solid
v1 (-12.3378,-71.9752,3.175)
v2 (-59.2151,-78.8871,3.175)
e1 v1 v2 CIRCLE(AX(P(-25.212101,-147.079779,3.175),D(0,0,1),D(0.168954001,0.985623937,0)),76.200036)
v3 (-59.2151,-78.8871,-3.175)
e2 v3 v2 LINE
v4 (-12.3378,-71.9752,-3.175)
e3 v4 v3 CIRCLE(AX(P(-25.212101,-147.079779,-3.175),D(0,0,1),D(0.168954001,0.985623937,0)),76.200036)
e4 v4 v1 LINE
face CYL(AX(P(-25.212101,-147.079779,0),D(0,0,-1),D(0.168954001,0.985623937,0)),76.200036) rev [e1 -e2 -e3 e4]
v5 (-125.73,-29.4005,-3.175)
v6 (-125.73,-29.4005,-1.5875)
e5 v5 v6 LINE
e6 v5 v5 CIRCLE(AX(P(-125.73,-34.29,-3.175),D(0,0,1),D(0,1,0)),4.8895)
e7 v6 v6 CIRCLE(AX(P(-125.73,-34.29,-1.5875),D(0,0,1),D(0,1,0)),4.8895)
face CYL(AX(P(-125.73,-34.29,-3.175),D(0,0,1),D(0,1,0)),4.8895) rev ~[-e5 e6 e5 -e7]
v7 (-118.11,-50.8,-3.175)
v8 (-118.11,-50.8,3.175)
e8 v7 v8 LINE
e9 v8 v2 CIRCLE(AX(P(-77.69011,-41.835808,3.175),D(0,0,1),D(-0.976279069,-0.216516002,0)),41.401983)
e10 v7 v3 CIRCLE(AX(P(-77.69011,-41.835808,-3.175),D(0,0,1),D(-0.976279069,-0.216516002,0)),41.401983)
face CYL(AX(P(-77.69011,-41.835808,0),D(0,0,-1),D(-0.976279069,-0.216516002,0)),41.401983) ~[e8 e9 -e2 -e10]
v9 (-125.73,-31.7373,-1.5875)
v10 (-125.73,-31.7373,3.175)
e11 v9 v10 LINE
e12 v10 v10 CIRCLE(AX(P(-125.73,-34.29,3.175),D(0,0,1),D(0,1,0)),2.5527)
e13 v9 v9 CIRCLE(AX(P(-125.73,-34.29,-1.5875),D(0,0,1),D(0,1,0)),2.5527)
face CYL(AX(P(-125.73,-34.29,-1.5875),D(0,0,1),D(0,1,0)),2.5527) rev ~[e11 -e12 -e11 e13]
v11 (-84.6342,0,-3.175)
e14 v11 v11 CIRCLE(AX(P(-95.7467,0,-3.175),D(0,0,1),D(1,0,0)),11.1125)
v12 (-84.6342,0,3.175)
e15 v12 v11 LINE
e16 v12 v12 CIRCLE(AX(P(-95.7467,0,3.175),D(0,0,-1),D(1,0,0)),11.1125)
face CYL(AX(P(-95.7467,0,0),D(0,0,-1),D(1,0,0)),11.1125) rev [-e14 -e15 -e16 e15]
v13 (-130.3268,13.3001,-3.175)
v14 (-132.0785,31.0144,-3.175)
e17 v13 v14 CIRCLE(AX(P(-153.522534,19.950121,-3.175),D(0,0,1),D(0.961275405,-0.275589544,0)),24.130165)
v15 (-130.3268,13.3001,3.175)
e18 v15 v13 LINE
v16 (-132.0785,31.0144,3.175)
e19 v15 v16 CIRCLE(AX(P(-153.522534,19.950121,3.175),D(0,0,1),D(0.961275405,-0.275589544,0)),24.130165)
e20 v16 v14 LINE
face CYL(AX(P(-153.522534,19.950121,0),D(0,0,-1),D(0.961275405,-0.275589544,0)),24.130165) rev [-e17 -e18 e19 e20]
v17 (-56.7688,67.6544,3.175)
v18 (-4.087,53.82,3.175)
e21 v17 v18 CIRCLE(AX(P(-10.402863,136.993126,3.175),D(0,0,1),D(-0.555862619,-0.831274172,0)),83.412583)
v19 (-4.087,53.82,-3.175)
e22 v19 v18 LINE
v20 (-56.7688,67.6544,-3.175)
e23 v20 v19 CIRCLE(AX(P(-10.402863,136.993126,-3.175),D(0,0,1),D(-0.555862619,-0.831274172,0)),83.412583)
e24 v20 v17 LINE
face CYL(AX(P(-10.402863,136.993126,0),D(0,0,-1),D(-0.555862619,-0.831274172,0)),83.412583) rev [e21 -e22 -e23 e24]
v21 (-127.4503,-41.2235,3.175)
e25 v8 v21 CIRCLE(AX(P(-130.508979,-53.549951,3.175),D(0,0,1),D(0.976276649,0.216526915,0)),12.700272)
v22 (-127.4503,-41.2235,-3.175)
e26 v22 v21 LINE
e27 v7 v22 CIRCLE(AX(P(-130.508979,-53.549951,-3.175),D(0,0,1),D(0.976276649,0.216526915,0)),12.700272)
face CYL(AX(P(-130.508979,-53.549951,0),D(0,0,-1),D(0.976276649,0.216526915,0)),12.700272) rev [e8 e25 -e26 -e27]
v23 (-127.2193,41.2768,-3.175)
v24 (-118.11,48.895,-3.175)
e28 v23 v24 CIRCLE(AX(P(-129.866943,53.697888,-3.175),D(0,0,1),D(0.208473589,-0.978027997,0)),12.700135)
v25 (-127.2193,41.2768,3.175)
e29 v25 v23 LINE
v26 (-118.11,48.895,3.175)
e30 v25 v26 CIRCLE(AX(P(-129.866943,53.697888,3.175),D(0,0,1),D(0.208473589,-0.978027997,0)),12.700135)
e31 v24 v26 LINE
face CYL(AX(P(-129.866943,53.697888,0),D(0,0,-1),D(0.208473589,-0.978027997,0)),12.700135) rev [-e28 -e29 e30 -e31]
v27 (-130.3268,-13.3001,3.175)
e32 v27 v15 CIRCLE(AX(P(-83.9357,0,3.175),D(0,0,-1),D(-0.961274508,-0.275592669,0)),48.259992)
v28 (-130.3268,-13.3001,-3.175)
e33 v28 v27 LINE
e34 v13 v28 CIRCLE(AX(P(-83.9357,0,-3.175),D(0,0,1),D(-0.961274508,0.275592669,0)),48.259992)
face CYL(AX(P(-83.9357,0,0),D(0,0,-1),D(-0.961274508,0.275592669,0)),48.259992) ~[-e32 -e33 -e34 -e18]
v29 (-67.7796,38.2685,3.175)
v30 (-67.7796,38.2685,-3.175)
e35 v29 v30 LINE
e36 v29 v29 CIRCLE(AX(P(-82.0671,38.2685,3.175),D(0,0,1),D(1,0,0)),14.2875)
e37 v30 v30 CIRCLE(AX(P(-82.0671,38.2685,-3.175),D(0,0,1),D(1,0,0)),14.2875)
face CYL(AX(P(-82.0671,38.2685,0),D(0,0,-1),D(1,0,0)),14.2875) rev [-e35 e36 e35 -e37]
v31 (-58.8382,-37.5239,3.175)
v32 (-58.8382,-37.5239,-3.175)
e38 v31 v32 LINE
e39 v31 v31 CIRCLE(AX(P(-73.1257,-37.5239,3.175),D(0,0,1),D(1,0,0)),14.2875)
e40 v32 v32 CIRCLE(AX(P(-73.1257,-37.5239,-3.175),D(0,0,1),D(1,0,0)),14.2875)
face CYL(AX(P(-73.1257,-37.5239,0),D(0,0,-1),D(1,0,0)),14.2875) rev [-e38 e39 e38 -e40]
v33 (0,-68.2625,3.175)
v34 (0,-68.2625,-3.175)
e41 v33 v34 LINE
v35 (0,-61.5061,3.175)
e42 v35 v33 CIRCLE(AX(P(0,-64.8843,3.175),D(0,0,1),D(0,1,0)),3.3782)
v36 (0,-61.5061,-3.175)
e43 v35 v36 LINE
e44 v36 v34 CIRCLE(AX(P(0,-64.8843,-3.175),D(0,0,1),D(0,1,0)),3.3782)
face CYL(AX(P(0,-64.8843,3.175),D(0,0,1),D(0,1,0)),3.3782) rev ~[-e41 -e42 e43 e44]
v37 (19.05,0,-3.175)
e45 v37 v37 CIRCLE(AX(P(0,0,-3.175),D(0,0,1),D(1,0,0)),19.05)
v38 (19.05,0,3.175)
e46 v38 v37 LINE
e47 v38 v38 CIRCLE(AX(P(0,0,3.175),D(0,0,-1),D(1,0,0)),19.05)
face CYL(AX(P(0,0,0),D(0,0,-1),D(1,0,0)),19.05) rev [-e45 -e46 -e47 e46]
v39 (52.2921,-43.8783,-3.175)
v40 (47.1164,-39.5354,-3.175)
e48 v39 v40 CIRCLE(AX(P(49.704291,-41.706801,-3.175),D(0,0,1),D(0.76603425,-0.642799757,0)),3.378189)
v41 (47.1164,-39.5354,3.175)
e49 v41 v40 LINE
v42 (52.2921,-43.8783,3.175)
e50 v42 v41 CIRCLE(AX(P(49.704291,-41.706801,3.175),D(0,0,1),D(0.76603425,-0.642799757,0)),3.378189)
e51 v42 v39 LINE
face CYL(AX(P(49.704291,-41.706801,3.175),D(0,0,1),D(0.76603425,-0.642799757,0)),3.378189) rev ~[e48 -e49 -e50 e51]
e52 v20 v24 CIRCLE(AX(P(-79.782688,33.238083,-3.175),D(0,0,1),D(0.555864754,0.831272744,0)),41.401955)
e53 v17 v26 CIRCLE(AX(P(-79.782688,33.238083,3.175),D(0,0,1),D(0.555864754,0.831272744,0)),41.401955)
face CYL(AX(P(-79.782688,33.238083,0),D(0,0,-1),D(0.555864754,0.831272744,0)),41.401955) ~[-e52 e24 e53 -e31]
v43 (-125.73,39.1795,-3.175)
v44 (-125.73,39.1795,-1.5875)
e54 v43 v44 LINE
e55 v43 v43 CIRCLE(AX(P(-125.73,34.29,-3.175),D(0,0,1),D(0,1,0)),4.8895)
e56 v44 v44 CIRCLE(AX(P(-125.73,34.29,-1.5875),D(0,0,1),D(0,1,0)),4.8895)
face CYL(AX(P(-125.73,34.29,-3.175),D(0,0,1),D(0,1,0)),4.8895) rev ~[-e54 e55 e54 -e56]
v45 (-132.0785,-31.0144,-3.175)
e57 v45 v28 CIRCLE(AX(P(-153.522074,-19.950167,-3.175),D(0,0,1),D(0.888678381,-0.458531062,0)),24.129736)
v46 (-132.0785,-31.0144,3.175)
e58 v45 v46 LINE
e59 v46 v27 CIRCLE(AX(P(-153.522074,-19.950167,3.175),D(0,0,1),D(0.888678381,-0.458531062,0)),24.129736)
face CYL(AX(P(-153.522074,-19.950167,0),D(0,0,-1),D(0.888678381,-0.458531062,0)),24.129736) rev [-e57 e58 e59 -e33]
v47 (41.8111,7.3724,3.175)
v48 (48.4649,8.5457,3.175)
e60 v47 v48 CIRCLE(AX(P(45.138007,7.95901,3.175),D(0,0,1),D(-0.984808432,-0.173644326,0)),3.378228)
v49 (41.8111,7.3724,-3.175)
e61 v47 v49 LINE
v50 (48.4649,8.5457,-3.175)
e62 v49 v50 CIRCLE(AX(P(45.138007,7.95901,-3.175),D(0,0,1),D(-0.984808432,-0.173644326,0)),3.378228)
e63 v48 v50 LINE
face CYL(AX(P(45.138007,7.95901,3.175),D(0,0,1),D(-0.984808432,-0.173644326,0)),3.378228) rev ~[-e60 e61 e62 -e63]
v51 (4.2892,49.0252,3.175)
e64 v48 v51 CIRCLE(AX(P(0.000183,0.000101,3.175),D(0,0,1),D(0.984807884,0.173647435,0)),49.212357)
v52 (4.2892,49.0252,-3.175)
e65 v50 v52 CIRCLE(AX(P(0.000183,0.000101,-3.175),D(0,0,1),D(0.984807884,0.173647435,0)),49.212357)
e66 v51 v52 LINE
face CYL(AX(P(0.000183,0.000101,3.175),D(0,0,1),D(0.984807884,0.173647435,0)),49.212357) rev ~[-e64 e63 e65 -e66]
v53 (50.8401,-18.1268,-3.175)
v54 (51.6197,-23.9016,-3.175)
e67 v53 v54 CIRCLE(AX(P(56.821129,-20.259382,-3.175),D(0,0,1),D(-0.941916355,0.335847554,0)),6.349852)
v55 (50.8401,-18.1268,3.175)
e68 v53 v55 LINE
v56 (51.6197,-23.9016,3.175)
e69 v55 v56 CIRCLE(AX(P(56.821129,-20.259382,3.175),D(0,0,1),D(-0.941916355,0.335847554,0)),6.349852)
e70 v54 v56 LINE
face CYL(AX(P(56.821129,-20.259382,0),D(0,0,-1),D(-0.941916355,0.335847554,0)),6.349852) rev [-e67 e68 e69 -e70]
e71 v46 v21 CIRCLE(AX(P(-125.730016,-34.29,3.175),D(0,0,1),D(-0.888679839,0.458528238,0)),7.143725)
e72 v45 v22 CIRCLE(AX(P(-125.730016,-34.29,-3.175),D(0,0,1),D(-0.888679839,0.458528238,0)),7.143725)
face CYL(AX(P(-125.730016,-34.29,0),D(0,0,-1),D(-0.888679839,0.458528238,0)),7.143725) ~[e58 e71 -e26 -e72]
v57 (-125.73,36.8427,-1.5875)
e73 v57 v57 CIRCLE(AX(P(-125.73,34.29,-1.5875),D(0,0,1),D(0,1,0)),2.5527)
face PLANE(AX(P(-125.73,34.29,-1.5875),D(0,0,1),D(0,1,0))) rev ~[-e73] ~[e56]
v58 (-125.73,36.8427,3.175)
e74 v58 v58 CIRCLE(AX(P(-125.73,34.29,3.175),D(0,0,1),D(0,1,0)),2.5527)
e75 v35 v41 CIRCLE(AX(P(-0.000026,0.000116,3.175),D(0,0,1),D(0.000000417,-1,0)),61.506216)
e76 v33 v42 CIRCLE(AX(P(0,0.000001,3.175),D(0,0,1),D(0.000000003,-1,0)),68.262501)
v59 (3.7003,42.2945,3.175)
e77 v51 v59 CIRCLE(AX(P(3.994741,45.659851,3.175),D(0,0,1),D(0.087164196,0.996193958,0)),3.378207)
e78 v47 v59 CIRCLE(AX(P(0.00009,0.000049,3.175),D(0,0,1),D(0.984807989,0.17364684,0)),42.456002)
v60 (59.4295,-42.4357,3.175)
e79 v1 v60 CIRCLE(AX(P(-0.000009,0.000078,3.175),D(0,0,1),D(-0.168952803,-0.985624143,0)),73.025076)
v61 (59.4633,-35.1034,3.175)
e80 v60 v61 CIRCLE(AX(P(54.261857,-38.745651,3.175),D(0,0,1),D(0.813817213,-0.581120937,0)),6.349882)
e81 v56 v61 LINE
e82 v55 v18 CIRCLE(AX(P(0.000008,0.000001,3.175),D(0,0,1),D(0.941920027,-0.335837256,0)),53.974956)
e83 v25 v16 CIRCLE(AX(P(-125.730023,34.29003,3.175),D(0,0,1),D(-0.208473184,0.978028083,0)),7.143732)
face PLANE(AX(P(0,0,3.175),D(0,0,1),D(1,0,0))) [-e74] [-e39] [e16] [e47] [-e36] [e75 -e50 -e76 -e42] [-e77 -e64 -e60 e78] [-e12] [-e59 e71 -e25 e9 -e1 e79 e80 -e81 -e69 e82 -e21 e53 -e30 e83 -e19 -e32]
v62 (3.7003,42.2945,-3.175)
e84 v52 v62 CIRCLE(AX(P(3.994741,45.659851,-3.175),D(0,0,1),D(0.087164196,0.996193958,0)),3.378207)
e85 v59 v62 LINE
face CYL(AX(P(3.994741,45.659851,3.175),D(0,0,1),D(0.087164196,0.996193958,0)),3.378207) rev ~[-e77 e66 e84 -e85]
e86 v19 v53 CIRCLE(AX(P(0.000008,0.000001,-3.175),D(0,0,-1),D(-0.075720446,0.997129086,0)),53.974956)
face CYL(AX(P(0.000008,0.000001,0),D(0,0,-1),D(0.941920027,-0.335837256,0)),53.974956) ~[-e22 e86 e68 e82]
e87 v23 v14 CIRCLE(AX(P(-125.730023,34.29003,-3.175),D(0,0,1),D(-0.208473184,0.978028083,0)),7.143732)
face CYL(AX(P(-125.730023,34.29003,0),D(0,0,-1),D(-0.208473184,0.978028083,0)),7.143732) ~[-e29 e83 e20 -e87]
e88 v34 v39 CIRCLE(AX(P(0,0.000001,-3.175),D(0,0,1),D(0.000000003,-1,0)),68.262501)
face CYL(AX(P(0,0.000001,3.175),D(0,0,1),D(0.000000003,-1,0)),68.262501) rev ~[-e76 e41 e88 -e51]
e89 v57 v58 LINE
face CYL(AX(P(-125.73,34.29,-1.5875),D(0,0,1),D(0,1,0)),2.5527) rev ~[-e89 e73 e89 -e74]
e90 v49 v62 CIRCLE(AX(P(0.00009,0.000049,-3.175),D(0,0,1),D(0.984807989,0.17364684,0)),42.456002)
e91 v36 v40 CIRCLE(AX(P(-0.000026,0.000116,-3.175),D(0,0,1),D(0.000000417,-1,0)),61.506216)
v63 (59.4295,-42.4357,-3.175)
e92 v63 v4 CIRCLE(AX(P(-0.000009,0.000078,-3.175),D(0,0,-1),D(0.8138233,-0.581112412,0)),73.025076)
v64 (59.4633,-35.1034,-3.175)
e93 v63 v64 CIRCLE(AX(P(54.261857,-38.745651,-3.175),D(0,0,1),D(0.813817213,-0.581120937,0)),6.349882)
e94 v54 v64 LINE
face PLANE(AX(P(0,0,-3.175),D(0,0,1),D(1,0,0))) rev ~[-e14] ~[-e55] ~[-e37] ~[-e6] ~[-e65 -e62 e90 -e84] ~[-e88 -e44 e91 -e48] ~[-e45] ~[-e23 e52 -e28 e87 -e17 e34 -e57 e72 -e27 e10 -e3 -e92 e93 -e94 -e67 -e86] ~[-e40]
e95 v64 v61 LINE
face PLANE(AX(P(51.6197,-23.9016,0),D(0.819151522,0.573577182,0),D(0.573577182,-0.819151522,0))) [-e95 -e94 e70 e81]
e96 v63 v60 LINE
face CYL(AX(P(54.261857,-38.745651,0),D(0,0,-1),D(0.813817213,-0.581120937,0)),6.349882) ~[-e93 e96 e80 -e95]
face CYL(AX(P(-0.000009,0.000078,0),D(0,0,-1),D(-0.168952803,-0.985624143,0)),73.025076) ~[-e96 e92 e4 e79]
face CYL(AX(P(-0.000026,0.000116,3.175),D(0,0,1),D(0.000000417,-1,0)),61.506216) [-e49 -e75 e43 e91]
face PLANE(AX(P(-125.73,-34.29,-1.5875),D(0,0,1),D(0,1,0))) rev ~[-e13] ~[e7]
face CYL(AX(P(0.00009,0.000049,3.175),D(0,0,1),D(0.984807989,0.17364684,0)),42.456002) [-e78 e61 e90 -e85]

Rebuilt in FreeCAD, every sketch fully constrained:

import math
import FreeCAD as App
import Part
import Sketcher
from FreeCAD import Vector
Q = App.Units.Quantity

doc = App.newDocument("Part")
body = doc.addObject("PartDesign::Body", "Body")

# Sketch on XY plane
sketch1 = body.newObject("Sketcher::SketchObject", "Sketch")
sketch1.AttachmentSupport = (doc.getObject("XY_Plane"), [""])
sketch1.MapMode = "FlatFace"
sketch1.addGeometry(Part.ArcOfCircle(Part.Circle(Vector(-84, 0, 0), Vector(0, 0, 1), 48), math.radians(164), math.radians(196)), False)
sketch1.addGeometry(Part.ArcOfCircle(Part.Circle(Vector(-154, -20, 0), Vector(0, 0, 1), 24), math.radians(-27), math.radians(16)), False)
sketch1.addGeometry(Part.ArcOfCircle(Part.Circle(Vector(-126, -34, 0), Vector(0, 0, 1), 7), math.radians(153), math.radians(256)), False)
sketch1.addGeometry(Part.ArcOfCircle(Part.Circle(Vector(-131, -54, 0), Vector(0, 0, 1), 13), math.radians(13), math.radians(76)), False)
sketch1.addGeometry(Part.ArcOfCircle(Part.Circle(Vector(-78, -42, 0), Vector(0, 0, 1), 41), math.radians(-167), math.radians(-63)), False)
sketch1.addGeometry(Part.ArcOfCircle(Part.Circle(Vector(-25, -147, 0), Vector(0, 0, 1), 76), math.radians(80), math.radians(117)), False)
sketch1.addGeometry(Part.ArcOfCircle(Part.Circle(Vector(0, 0, 0), Vector(0, 0, 1), 73), math.radians(-100), math.radians(-36)), False)
sketch1.addGeometry(Part.ArcOfCircle(Part.Circle(Vector(54, -39, 0), Vector(0, 0, 1), 6), math.radians(-36), math.radians(35)), False)
sketch1.addGeometry(Part.LineSegment(Vector(59, -35, 0), Vector(52, -24, 0)), False)
sketch1.addGeometry(Part.ArcOfCircle(Part.Circle(Vector(57, -20, 0), Vector(0, 0, 1), 6), math.radians(160), math.radians(215)), False)
sketch1.addGeometry(Part.ArcOfCircle(Part.Circle(Vector(0, 0, 0), Vector(0, 0, 1), 54), math.radians(-20), math.radians(94)), False)
sketch1.addGeometry(Part.ArcOfCircle(Part.Circle(Vector(-10, 137, 0), Vector(0, 0, 1), 83), math.radians(-124), math.radians(-86)), False)
sketch1.addGeometry(Part.ArcOfCircle(Part.Circle(Vector(-80, 33, 0), Vector(0, 0, 1), 41), math.radians(56), math.radians(158)), False)
sketch1.addGeometry(Part.ArcOfCircle(Part.Circle(Vector(-130, 54, 0), Vector(0, 0, 1), 13), math.radians(-78), math.radians(-22)), False)
sketch1.addGeometry(Part.ArcOfCircle(Part.Circle(Vector(-126, 34, 0), Vector(0, 0, 1), 7), math.radians(102), math.radians(207)), False)
sketch1.addGeometry(Part.ArcOfCircle(Part.Circle(Vector(-154, 20, 0), Vector(0, 0, 1), 24), math.radians(-16), math.radians(27)), False)
sketch1.addGeometry(Part.Circle(Vector(0, 0, 0), Vector(0, 0, 1), 19), False)
sketch1.addGeometry(Part.Circle(Vector(-96, 0, 0), Vector(0, 0, 1), 11), False)
sketch1.addGeometry(Part.Circle(Vector(-82, 38, 0), Vector(0, 0, 1), 14), False)
sketch1.addGeometry(Part.Circle(Vector(-73, -38, 0), Vector(0, 0, 1), 14), False)
sketch1.addConstraint(Sketcher.Constraint("Tangent", 0, 2, 1, 2))
sketch1.addConstraint(Sketcher.Constraint("Tangent", 1, 1, 2, 1))
sketch1.addConstraint(Sketcher.Constraint("Tangent", 2, 2, 3, 2))
sketch1.addConstraint(Sketcher.Constraint("Tangent", 3, 1, 4, 1))
sketch1.addConstraint(Sketcher.Constraint("Tangent", 4, 2, 5, 2))
sketch1.addConstraint(Sketcher.Constraint("Tangent", 5, 1, 6, 1))
sketch1.addConstraint(Sketcher.Constraint("Tangent", 6, 2, 7, 1))
sketch1.addConstraint(Sketcher.Constraint("Tangent", 7, 2, 8, 1))
sketch1.addConstraint(Sketcher.Constraint("Tangent", 8, 2, 9, 2))
sketch1.addConstraint(Sketcher.Constraint("Tangent", 9, 1, 10, 1))
sketch1.addConstraint(Sketcher.Constraint("Tangent", 10, 2, 11, 2))
sketch1.addConstraint(Sketcher.Constraint("Tangent", 11, 1, 12, 1))
sketch1.addConstraint(Sketcher.Constraint("Tangent", 12, 2, 13, 2))
sketch1.addConstraint(Sketcher.Constraint("Tangent", 13, 1, 14, 1))
sketch1.addConstraint(Sketcher.Constraint("Tangent", 14, 2, 15, 2))
sketch1.addConstraint(Sketcher.Constraint("Tangent", 15, 1, 0, 1))
sketch1.addConstraint(Sketcher.Constraint("Coincident", 6, 3, -1, 1))
sketch1.addConstraint(Sketcher.Constraint("Coincident", 10, 3, -1, 1))
sketch1.addConstraint(Sketcher.Constraint("Coincident", 16, 3, -1, 1))
sketch1.addConstraint(Sketcher.Constraint("Equal", 7, 9))
sketch1.addConstraint(Sketcher.Constraint("Equal", 4, 12))
sketch1.addConstraint(Sketcher.Constraint("Equal", 3, 13))
sketch1.addConstraint(Sketcher.Constraint("Equal", 2, 14))
sketch1.addConstraint(Sketcher.Constraint("Equal", 1, 15))
sketch1.addConstraint(Sketcher.Constraint("Equal", 18, 19))
sketch1.addConstraint(Sketcher.Constraint("Symmetric", 2, 3, 14, 3, -1))
sketch1.addConstraint(Sketcher.Constraint("PointOnObject", 0, 3, -1))
sketch1.addConstraint(Sketcher.Constraint("PointOnObject", 17, 3, -1))
sketch1.addConstraint(Sketcher.Constraint("Vertical", 3, 1, 12, 2))
sketch1.addConstraint(Sketcher.Constraint("Radius", 5, Q("3 in")))
sketch1.addConstraint(Sketcher.Constraint("Diameter", 16, Q("1.5 in")))
sketch1.addConstraint(Sketcher.Constraint("Radius", 0, Q("1.9 in")))
sketch1.addConstraint(Sketcher.Constraint("Radius", 3, Q("0.5 in")))
sketch1.addConstraint(Sketcher.Constraint("Radius", 1, Q("0.95 in")))
sketch1.addConstraint(Sketcher.Constraint("Radius", 4, Q("1.63 in")))
sketch1.addConstraint(Sketcher.Constraint("Radius", 7, Q("0.25 in")))
sketch1.addConstraint(Sketcher.Constraint("Diameter", 17, Q("0.875 in")))
sketch1.addConstraint(Sketcher.Constraint("Diameter", 18, Q("1.125 in")))
sketch1.addConstraint(Sketcher.Constraint("DistanceY", 3, 1, -1, 1, Q("2 in")))
sketch1.addConstraint(Sketcher.Constraint("Radius", 2, Q("0.281248 in")))
sketch1.addConstraint(Sketcher.Constraint("Radius", 6, Q("2.875 in")))
sketch1.addConstraint(Sketcher.Constraint("Radius", 10, Q("2.125 in")))
sketch1.addConstraint(Sketcher.Constraint("DistanceX", 2, 3, -1, 1, Q("4.95 in")))
sketch1.addConstraint(Sketcher.Constraint("DistanceY", 2, 3, -1, 1, Q("1.35 in")))
sketch1.addConstraint(Sketcher.Constraint("DistanceX", 3, 1, -1, 1, Q("4.65 in")))
sketch1.addConstraint(Sketcher.Constraint("DistanceY", -1, 1, 12, 2, Q("1.925 in")))
sketch1.addConstraint(Sketcher.Constraint("Angle", 8, Q("125 deg")))
sketch1.addConstraint(Sketcher.Constraint("DistanceX", 17, 3, 0, 3, Q("0.465 in")))
sketch1.addConstraint(Sketcher.Constraint("Radius", 11, Q("83.412 mm")))
sketch1.addConstraint(Sketcher.Constraint("DistanceX", 18, 3, -1, 1, Q("3.231 in")))
sketch1.addConstraint(Sketcher.Constraint("DistanceY", 8, 2, -1, 1, Q("0.941 in")))
sketch1.addConstraint(Sketcher.Constraint("DistanceX", 0, 3, 4, 3, Q("0.2459 in")))
sketch1.addConstraint(Sketcher.Constraint("DistanceX", 4, 3, 19, 3, Q("0.1797 in")))
sketch1.addConstraint(Sketcher.Constraint("DistanceY", -1, 1, 18, 3, Q("38.2685 mm")))
sketch1.addConstraint(Sketcher.Constraint("DistanceY", 19, 3, -1, 1, Q("37.524 mm")))
pad1 = body.newObject("PartDesign::Pad", "Pad")
pad1.Profile = sketch1
pad1.Length = Q("0.25 in")
pad1.Midplane = True

# Sketch on XY plane
sketch2 = body.newObject("Sketcher::SketchObject", "Sketch001")
sketch2.AttachmentSupport = (doc.getObject("XY_Plane"), [""])
sketch2.MapMode = "FlatFace"
sketch2.AttachmentOffset = App.Placement(Vector(0, 0, -0.125 * 25.4), App.Rotation())
sketch2.addGeometry(Part.Circle(Vector(-125.7, 34.3, 0), Vector(0, 0, 1), 2.6), False)
sketch2.addGeometry(Part.Circle(Vector(-125.7, -34.3, 0), Vector(0, 0, 1), 2.6), False)
sketch2.addConstraint(Sketcher.Constraint("Equal", 0, 1))
sketch2.addConstraint(Sketcher.Constraint("Symmetric", 0, 3, 1, 3, -1))
sketch2.addConstraint(Sketcher.Constraint("Diameter", 0, Q("0.201 in")))
sketch2.addConstraint(Sketcher.Constraint("DistanceY", 1, 3, 0, 3, Q("2.7 in")))
sketch2.addConstraint(Sketcher.Constraint("DistanceX", 0, 3, -1, 1, Q("4.95 in")))
doc.recompute()
hole = body.newObject("PartDesign::Hole", "Hole")
hole.Profile = sketch2
hole.ThreadType = "None"
hole.Diameter = Q("0.201 in")
hole.DepthType = "ThroughAll"
hole.HoleCutType = "Counterbore"
hole.HoleCutDiameter = Q("0.385 in")
hole.HoleCutDepth = Q("0.0625 in")
hole.Reversed = True

# Sketch on XY plane
sketch3 = body.newObject("Sketcher::SketchObject", "Sketch002")
sketch3.AttachmentSupport = (doc.getObject("XY_Plane"), [""])
sketch3.MapMode = "FlatFace"
sketch3.AttachmentOffset = App.Placement(Vector(0, 0, 0.125 * 25.4), App.Rotation())
sketch3.addGeometry(Part.ArcOfCircle(Part.Circle(Vector(0, 0, 0), Vector(0, 0, 1), 61.5), math.radians(-90), math.radians(-40)), False)
sketch3.addGeometry(Part.ArcOfCircle(Part.Circle(Vector(0, -64.9, 0), Vector(0, 0, 1), 3.4), math.radians(90), math.radians(270)), False)
sketch3.addGeometry(Part.ArcOfCircle(Part.Circle(Vector(0, 0, 0), Vector(0, 0, 1), 68.3), math.radians(-90), math.radians(-40)), False)
sketch3.addGeometry(Part.ArcOfCircle(Part.Circle(Vector(49.7, -41.7, 0), Vector(0, 0, 1), 3.4), math.radians(-40), math.radians(140)), False)
sketch3.addConstraint(Sketcher.Constraint("Tangent", 0, 1, 1, 1))
sketch3.addConstraint(Sketcher.Constraint("Tangent", 1, 2, 2, 1))
sketch3.addConstraint(Sketcher.Constraint("Tangent", 2, 2, 3, 1))
sketch3.addConstraint(Sketcher.Constraint("Tangent", 3, 2, 0, 2))
sketch3.addConstraint(Sketcher.Constraint("Coincident", 0, 3, -1, 1))
sketch3.addConstraint(Sketcher.Constraint("Coincident", 2, 3, -1, 1))
sketch3.addConstraint(Sketcher.Constraint("PointOnObject", 1, 3, -2))
sketch3.addConstraint(Sketcher.Constraint("Radius", 1, Q("0.133 in")))
sketch3.addConstraint(Sketcher.Constraint("Radius", 2, Q("2.6875 in")))
sketch3.addConstraint(Sketcher.Constraint("DistanceY", 1, 2, 2, 2, Q("0.96 in")))
pocket1 = body.newObject("PartDesign::Pocket", "Pocket")
pocket1.Profile = sketch3
pocket1.Type = "ThroughAll"

# Sketch on XY plane
sketch4 = body.newObject("Sketcher::SketchObject", "Sketch003")
sketch4.AttachmentSupport = (doc.getObject("XY_Plane"), [""])
sketch4.MapMode = "FlatFace"
sketch4.AttachmentOffset = App.Placement(Vector(0, 0, 0.125 * 25.4), App.Rotation())
sketch4.addGeometry(Part.ArcOfCircle(Part.Circle(Vector(0, 0, 0), Vector(0, 0, 1), 42.5), math.radians(10), math.radians(85)), False)
sketch4.addGeometry(Part.ArcOfCircle(Part.Circle(Vector(45.1, 8, 0), Vector(0, 0, 1), 3.4), math.radians(-170), math.radians(10)), False)
sketch4.addGeometry(Part.ArcOfCircle(Part.Circle(Vector(0, 0, 0), Vector(0, 0, 1), 49.2), math.radians(10), math.radians(85)), False)
sketch4.addGeometry(Part.ArcOfCircle(Part.Circle(Vector(4, 45.7, 0), Vector(0, 0, 1), 3.4), math.radians(85), math.radians(265)), False)
sketch4.addConstraint(Sketcher.Constraint("Tangent", 0, 1, 1, 1))
sketch4.addConstraint(Sketcher.Constraint("Tangent", 1, 2, 2, 1))
sketch4.addConstraint(Sketcher.Constraint("Tangent", 2, 2, 3, 1))
sketch4.addConstraint(Sketcher.Constraint("Tangent", 3, 2, 0, 2))
sketch4.addConstraint(Sketcher.Constraint("Coincident", 0, 3, -1, 1))
sketch4.addConstraint(Sketcher.Constraint("Coincident", 2, 3, -1, 1))
sketch4.addConstraint(Sketcher.Constraint("Radius", 1, Q("0.133 in")))
sketch4.addConstraint(Sketcher.Constraint("Radius", 2, Q("1.9375 in")))
sketch4.addConstraint(Sketcher.Constraint("DistanceX", -1, 1, 0, 1, Q("1.6461 in")))
sketch4.addConstraint(Sketcher.Constraint("DistanceX", 3, 3, 1, 2, Q("1.7508 in")))
pocket2 = body.newObject("PartDesign::Pocket", "Pocket001")
pocket2.Profile = sketch4
pocket2.Type = "ThroughAll"

doc.recompute()
